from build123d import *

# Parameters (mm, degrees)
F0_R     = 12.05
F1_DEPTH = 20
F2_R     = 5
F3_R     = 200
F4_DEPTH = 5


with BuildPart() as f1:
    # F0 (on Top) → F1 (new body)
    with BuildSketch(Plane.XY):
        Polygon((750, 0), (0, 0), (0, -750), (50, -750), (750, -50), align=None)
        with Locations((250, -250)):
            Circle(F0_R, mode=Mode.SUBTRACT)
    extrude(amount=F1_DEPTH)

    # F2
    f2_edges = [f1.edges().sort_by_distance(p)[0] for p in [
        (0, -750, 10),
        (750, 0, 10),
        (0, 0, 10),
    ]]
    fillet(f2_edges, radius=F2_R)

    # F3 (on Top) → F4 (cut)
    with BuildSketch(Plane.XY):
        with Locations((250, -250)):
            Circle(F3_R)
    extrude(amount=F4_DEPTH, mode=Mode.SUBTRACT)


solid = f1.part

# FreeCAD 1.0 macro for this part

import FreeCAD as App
import Part
import Sketcher
Q = App.Units.Quantity


def edges_at(feature, points):
    """Names of the edges that pass closest to the given points."""
    edges = feature.Shape.Edges
    near = lambda p: min(range(len(edges)), key=lambda i: edges[i].distToShape(Part.Vertex(*p))[0])
    return sorted({f"Edge{near(p) + 1}" for p in points})

doc = App.newDocument("Part")
params = doc.addObject("Spreadsheet::Sheet", "Params")
for row, (alias, value) in enumerate([
    ("sketch1_diameter", "24.1 mm"),
    ("sketch1_width", "750 mm"),
    ("sketch1_width2", "50 mm"),
    ("pad1_length", "20 mm"),
    ("fillet_radius", "5 mm"),
    ("sketch2_diameter", "400 mm"),
    ("pocket1_length", "5 mm"),
], start=1):
    params.set(f"A{row}", alias)
    params.set(f"B{row}", "=" + value)
    params.setAlias(f"B{row}", alias)

body = doc.addObject("PartDesign::Body", "Body")

sketch1 = body.newObject("Sketcher::SketchObject", "Sketch")
sketch1.AttachmentSupport = (doc.getObject("XY_Plane"), [""])
sketch1.MapMode = "FlatFace"
sketch1.addGeometry(Part.LineSegment(App.Vector(750, 0, 0), App.Vector(0, 0, 0)), False)
sketch1.addGeometry(Part.LineSegment(App.Vector(0, 0, 0), App.Vector(0, -750, 0)), False)
sketch1.addGeometry(Part.LineSegment(App.Vector(0, -750, 0), App.Vector(50, -750, 0)), False)
sketch1.addGeometry(Part.LineSegment(App.Vector(50, -750, 0), App.Vector(750, -50, 0)), False)
sketch1.addGeometry(Part.LineSegment(App.Vector(750, -50, 0), App.Vector(750, 0, 0)), False)
sketch1.addGeometry(Part.Circle(App.Vector(250, -250, 0), App.Vector(0, 0, 1), 12.05), False)
sketch1.addConstraint(Sketcher.Constraint("Coincident", 0, 2, 1, 1))
sketch1.addConstraint(Sketcher.Constraint("Coincident", 1, 2, 2, 1))
sketch1.addConstraint(Sketcher.Constraint("Coincident", 2, 2, 3, 1))
sketch1.addConstraint(Sketcher.Constraint("Coincident", 3, 2, 4, 1))
sketch1.addConstraint(Sketcher.Constraint("Coincident", 4, 2, 0, 1))
sketch1.addConstraint(Sketcher.Constraint("Horizontal", 0))
sketch1.addConstraint(Sketcher.Constraint("Vertical", 1))
sketch1.addConstraint(Sketcher.Constraint("Horizontal", 2))
sketch1.addConstraint(Sketcher.Constraint("Vertical", 4))
sketch1.addConstraint(Sketcher.Constraint("Coincident", 0, 2, -1, 1))
sketch1.addConstraint(Sketcher.Constraint("Equal", 0, 1))
sketch1.addConstraint(Sketcher.Constraint("Equal", 2, 4))
sketch1.addConstraint(Sketcher.Constraint("Diameter", 5, Q("24.1 mm")))
sketch1.addConstraint(Sketcher.Constraint("DistanceX", 0, 2, 0, 1, Q("750 mm")))
sketch1.addConstraint(Sketcher.Constraint("DistanceX", 2, 1, 2, 2, Q("50 mm")))
sketch1.addConstraint(Sketcher.Constraint("DistanceX", -1, 1, 5, 3, Q("250 mm")))
sketch1.addConstraint(Sketcher.Constraint("DistanceY", 5, 3, -1, 1, Q("250 mm")))
sketch1.setExpression("Constraints[12]", "Params.sketch1_diameter")
sketch1.setExpression("Constraints[13]", "Params.sketch1_width")
sketch1.setExpression("Constraints[14]", "Params.sketch1_width2")
pad1 = body.newObject("PartDesign::Pad", "Pad")
pad1.Profile = sketch1
pad1.setExpression("Length", "Params.pad1_length")
doc.recompute()

fillet = body.newObject("PartDesign::Fillet", "Fillet")
fillet.Base = (pad1, edges_at(pad1, [(0, -750, 10), (750, 0, 10), (0, 0, 10)]))
fillet.setExpression("Radius", "Params.fillet_radius")

sketch2 = body.newObject("Sketcher::SketchObject", "Sketch001")
sketch2.AttachmentSupport = (doc.getObject("XY_Plane"), [""])
sketch2.MapMode = "FlatFace"
sketch2.addGeometry(Part.Circle(App.Vector(250, -250, 0), App.Vector(0, 0, 1), 200), False)
sketch2.addConstraint(Sketcher.Constraint("Diameter", 0, Q("400 mm")))
sketch2.addConstraint(Sketcher.Constraint("DistanceX", -1, 1, 0, 3, Q("250 mm")))
sketch2.addConstraint(Sketcher.Constraint("DistanceY", 0, 3, -1, 1, Q("250 mm")))
sketch2.setExpression("Constraints[0]", "Params.sketch2_diameter")
pocket1 = body.newObject("PartDesign::Pocket", "Pocket")
pocket1.Profile = sketch2
pocket1.setExpression("Length", "Params.pocket1_length")
pocket1.Reversed = True

doc.recompute()
